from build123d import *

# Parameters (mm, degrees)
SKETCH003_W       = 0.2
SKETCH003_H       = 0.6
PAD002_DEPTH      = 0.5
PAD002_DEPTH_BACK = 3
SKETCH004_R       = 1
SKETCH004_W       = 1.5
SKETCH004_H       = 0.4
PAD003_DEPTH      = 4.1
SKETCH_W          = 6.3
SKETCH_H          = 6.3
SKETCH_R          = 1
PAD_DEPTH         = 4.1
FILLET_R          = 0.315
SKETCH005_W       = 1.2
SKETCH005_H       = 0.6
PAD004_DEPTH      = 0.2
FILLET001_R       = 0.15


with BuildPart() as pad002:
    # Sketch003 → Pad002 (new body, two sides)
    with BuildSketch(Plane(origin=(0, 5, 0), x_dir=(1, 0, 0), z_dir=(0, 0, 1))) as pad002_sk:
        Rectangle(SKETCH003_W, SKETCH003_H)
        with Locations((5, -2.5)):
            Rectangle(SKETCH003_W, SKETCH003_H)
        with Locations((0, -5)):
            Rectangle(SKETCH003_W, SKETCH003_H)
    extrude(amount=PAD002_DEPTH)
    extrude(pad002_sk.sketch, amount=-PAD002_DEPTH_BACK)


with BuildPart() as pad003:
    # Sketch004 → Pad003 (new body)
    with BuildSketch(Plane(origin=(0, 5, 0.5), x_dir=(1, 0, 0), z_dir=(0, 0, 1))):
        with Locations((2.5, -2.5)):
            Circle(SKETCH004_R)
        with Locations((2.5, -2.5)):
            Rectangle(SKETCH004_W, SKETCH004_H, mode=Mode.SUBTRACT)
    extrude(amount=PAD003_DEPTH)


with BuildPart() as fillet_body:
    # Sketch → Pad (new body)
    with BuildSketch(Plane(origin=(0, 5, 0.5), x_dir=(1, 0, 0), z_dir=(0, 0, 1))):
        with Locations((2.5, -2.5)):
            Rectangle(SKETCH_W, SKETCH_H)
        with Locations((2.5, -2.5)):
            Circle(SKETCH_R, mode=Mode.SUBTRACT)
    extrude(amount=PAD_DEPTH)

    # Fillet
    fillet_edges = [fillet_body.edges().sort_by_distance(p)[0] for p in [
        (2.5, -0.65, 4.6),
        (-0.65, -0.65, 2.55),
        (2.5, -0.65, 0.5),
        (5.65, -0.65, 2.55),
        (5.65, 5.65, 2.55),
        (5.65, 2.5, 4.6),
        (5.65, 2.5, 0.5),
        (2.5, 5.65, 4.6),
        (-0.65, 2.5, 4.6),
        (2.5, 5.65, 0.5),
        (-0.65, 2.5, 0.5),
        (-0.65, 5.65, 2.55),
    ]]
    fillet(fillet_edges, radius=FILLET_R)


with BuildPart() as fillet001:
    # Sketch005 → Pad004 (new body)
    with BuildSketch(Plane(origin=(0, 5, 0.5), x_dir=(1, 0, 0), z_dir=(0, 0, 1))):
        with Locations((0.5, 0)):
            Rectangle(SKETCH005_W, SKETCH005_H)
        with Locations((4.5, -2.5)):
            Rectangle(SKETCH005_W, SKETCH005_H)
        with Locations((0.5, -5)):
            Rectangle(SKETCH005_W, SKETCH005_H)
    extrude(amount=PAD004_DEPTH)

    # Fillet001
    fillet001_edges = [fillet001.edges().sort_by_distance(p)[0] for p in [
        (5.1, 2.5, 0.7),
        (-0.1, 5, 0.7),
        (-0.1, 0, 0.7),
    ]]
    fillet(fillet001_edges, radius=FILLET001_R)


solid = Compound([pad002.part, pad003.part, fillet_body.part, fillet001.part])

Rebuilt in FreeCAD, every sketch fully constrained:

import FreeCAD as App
import Part
import Sketcher
Q = App.Units.Quantity


def edges_at(feature, points):
    """Names of the edges that pass closest to the given points."""
    edges = feature.Shape.Edges
    near = lambda p: min(range(len(edges)), key=lambda i: edges[i].distToShape(Part.Vertex(*p))[0])
    return sorted({f"Edge{near(p) + 1}" for p in points})

doc = App.newDocument("Part")
params = doc.addObject("Spreadsheet::Sheet", "Params")
for row, (alias, value) in enumerate([
    ("sketch1_width", "0.2 mm"),
    ("sketch1_height", "0.6 mm"),
    ("pad1_length", "0.5 mm"),
    ("pad1_length2", "3 mm"),
    ("sketch2_diameter", "2 mm"),
    ("sketch2_width", "1.5 mm"),
    ("sketch2_height", "0.4 mm"),
    ("pad2_length", "4.1 mm"),
    ("sketch3_diameter", "2 mm"),
    ("sketch3_width", "6.3 mm"),
    ("pad3_length", "4.1 mm"),
    ("fillet_radius", "0.315 mm"),
    ("sketch4_width", "1.2 mm"),
    ("sketch4_height", "0.6 mm"),
    ("pad4_length", "0.2 mm"),
    ("fillet2_radius", "0.15 mm"),
], start=1):
    params.set(f"A{row}", alias)
    params.set(f"B{row}", "=" + value)
    params.setAlias(f"B{row}", alias)

body = doc.addObject("PartDesign::Body", "Body")
body.AllowCompound = True

# Sketch on XY plane
sketch1 = body.newObject("Sketcher::SketchObject", "Sketch")
sketch1.AttachmentSupport = (doc.getObject("XY_Plane"), [""])
sketch1.MapMode = "FlatFace"
sketch1.addGeometry([
    Part.LineSegment(App.Vector(-0.1, 5.3, 0), App.Vector(-0.1, 4.7, 0)),  # 0
    Part.LineSegment(App.Vector(-0.1, 4.7, 0), App.Vector(0.1, 4.7, 0)),  # 1
    Part.LineSegment(App.Vector(0.1, 4.7, 0), App.Vector(0.1, 5.3, 0)),  # 2
    Part.LineSegment(App.Vector(0.1, 5.3, 0), App.Vector(-0.1, 5.3, 0)),  # 3
    Part.LineSegment(App.Vector(4.9, 2.8, 0), App.Vector(4.9, 2.2, 0)),  # 4
    Part.LineSegment(App.Vector(4.9, 2.2, 0), App.Vector(5.1, 2.2, 0)),  # 5
    Part.LineSegment(App.Vector(5.1, 2.2, 0), App.Vector(5.1, 2.8, 0)),  # 6
    Part.LineSegment(App.Vector(5.1, 2.8, 0), App.Vector(4.9, 2.8, 0)),  # 7
    Part.LineSegment(App.Vector(-0.1, 0.3, 0), App.Vector(-0.1, -0.3, 0)),  # 8
    Part.LineSegment(App.Vector(-0.1, -0.3, 0), App.Vector(0.1, -0.3, 0)),  # 9
    Part.LineSegment(App.Vector(0.1, -0.3, 0), App.Vector(0.1, 0.3, 0)),  # 10
    Part.LineSegment(App.Vector(0.1, 0.3, 0), App.Vector(-0.1, 0.3, 0)),  # 11
], False)
sketch1.addConstraint([
    Sketcher.Constraint("Coincident", 0, 2, 1, 1),
    Sketcher.Constraint("Coincident", 1, 2, 2, 1),
    Sketcher.Constraint("Coincident", 2, 2, 3, 1),
    Sketcher.Constraint("Coincident", 3, 2, 0, 1),
    Sketcher.Constraint("Coincident", 4, 2, 5, 1),
    Sketcher.Constraint("Coincident", 5, 2, 6, 1),
    Sketcher.Constraint("Coincident", 6, 2, 7, 1),
    Sketcher.Constraint("Coincident", 7, 2, 4, 1),
    Sketcher.Constraint("Coincident", 8, 2, 9, 1),
    Sketcher.Constraint("Coincident", 9, 2, 10, 1),
    Sketcher.Constraint("Coincident", 10, 2, 11, 1),
    Sketcher.Constraint("Coincident", 11, 2, 8, 1),
    Sketcher.Constraint("Vertical", 0),
    Sketcher.Constraint("Horizontal", 1),
    Sketcher.Constraint("Vertical", 2),
    Sketcher.Constraint("Horizontal", 3),
    Sketcher.Constraint("Vertical", 4),
    Sketcher.Constraint("Horizontal", 5),
    Sketcher.Constraint("Vertical", 6),
    Sketcher.Constraint("Horizontal", 7),
    Sketcher.Constraint("Vertical", 8),
    Sketcher.Constraint("Horizontal", 9),
    Sketcher.Constraint("Vertical", 10),
    Sketcher.Constraint("Horizontal", 11),
    Sketcher.Constraint("Symmetric", 8, 2, 10, 2, -1, 1),
    Sketcher.Constraint("Vertical", 3, 2, 8, 2),
    Sketcher.Constraint("Vertical", 2, 2, 9, 2),
    Sketcher.Constraint("Equal", 3, 5),
    Sketcher.Constraint("Equal", 2, 4),
    Sketcher.Constraint("Equal", 6, 8),
    Sketcher.Constraint("DistanceX", 1, 1, 1, 2, Q("0.2 mm")),
    Sketcher.Constraint("DistanceY", 0, 2, 0, 1, Q("0.6 mm")),
    Sketcher.Constraint("DistanceX", 0, 2, 4, 2, Q("5 mm")),
    Sketcher.Constraint("DistanceY", 8, 2, 0, 2, Q("5 mm")),
    Sketcher.Constraint("DistanceY", -1, 1, 4, 2, Q("2.2 mm")),
])
sketch1.setExpression("Constraints[30]", "Params.sketch1_width")
sketch1.setExpression("Constraints[31]", "Params.sketch1_height")
pad1 = body.newObject("PartDesign::Pad", "Pad")
pad1.Profile = sketch1
pad1.Type = "TwoLengths"
pad1.setExpression("Length", "Params.pad1_length")
pad1.setExpression("Length2", "Params.pad1_length2")
body2 = doc.addObject("PartDesign::Body", "Body001")

# Sketch on XY plane
sketch2 = body2.newObject("Sketcher::SketchObject", "Sketch001")
sketch2.AttachmentSupport = (doc.getObject("XY_Plane001"), [""])
sketch2.MapMode = "FlatFace"
sketch2.AttachmentOffset = App.Placement(App.Vector(0, 0, 0.5), App.Rotation())
sketch2.addGeometry([
    Part.Circle(App.Vector(2.5, 2.5, 0), App.Vector(0, 0, 1), 1),  # 0
    Part.LineSegment(App.Vector(3.25, 2.3, 0), App.Vector(1.75, 2.3, 0)),  # 1
    Part.LineSegment(App.Vector(1.75, 2.3, 0), App.Vector(1.75, 2.7, 0)),  # 2
    Part.LineSegment(App.Vector(1.75, 2.7, 0), App.Vector(3.25, 2.7, 0)),  # 3
    Part.LineSegment(App.Vector(3.25, 2.7, 0), App.Vector(3.25, 2.3, 0)),  # 4
], False)
sketch2.addConstraint([
    Sketcher.Constraint("Coincident", 1, 2, 2, 1),
    Sketcher.Constraint("Coincident", 2, 2, 3, 1),
    Sketcher.Constraint("Coincident", 3, 2, 4, 1),
    Sketcher.Constraint("Coincident", 4, 2, 1, 1),
    Sketcher.Constraint("Horizontal", 1),
    Sketcher.Constraint("Vertical", 2),
    Sketcher.Constraint("Horizontal", 3),
    Sketcher.Constraint("Vertical", 4),
    Sketcher.Constraint("Diameter", 0, Q("2 mm")),
    Sketcher.Constraint("DistanceX", 1, 2, 1, 1, Q("1.5 mm")),
    Sketcher.Constraint("DistanceY", 2, 1, 2, 2, Q("0.4 mm")),
    Sketcher.Constraint("DistanceX", -1, 1, 0, 3, Q("2.5 mm")),
    Sketcher.Constraint("DistanceY", -1, 1, 0, 3, Q("2.5 mm")),
    Sketcher.Constraint("DistanceY", -1, 1, 1, 2, Q("2.3 mm")),
    Sketcher.Constraint("DistanceX", -1, 1, 1, 2, Q("1.75 mm")),
])
sketch2.setExpression("Constraints[8]", "Params.sketch2_diameter")
sketch2.setExpression("Constraints[9]", "Params.sketch2_width")
sketch2.setExpression("Constraints[10]", "Params.sketch2_height")
pad2 = body2.newObject("PartDesign::Pad", "Pad001")
pad2.Profile = sketch2
pad2.setExpression("Length", "Params.pad2_length")
body3 = doc.addObject("PartDesign::Body", "Body002")

# Sketch on XY plane
sketch3 = body3.newObject("Sketcher::SketchObject", "Sketch002")
sketch3.AttachmentSupport = (doc.getObject("XY_Plane002"), [""])
sketch3.MapMode = "FlatFace"
sketch3.AttachmentOffset = App.Placement(App.Vector(0, 0, 0.5), App.Rotation())
sketch3.addGeometry([
    Part.LineSegment(App.Vector(-0.7, 5.7, 0), App.Vector(-0.7, -0.7, 0)),  # 0
    Part.LineSegment(App.Vector(-0.7, -0.7, 0), App.Vector(5.7, -0.7, 0)),  # 1
    Part.LineSegment(App.Vector(5.7, -0.7, 0), App.Vector(5.7, 5.7, 0)),  # 2
    Part.LineSegment(App.Vector(5.7, 5.7, 0), App.Vector(-0.7, 5.7, 0)),  # 3
    Part.Circle(App.Vector(2.5, 2.5, 0), App.Vector(0, 0, 1), 1),  # 4
], False)
sketch3.addConstraint([
    Sketcher.Constraint("Coincident", 0, 2, 1, 1),
    Sketcher.Constraint("Coincident", 1, 2, 2, 1),
    Sketcher.Constraint("Coincident", 2, 2, 3, 1),
    Sketcher.Constraint("Coincident", 3, 2, 0, 1),
    Sketcher.Constraint("Vertical", 0),
    Sketcher.Constraint("Horizontal", 1),
    Sketcher.Constraint("Vertical", 2),
    Sketcher.Constraint("Horizontal", 3),
    Sketcher.Constraint("Equal", 3, 0),
    Sketcher.Constraint("Diameter", 4, Q("2 mm")),
    Sketcher.Constraint("DistanceX", 1, 1, 1, 2, Q("6.3 mm")),
    Sketcher.Constraint("DistanceX", -1, 1, 4, 3, Q("2.5 mm")),
    Sketcher.Constraint("DistanceY", -1, 1, 4, 3, Q("2.5 mm")),
    Sketcher.Constraint("DistanceX", 0, 2, -1, 1, Q("0.65 mm")),
    Sketcher.Constraint("DistanceY", 0, 2, -1, 1, Q("0.65 mm")),
])
sketch3.setExpression("Constraints[9]", "Params.sketch3_diameter")
sketch3.setExpression("Constraints[10]", "Params.sketch3_width")
pad3 = body3.newObject("PartDesign::Pad", "Pad002")
pad3.Profile = sketch3
pad3.setExpression("Length", "Params.pad3_length")
doc.recompute()

fillet = body3.newObject("PartDesign::Fillet", "Fillet")
fillet.Base = (pad3, edges_at(pad3, [
    (2.5, -0.65, 4.6),
    (-0.65, -0.65, 2.55),
    (2.5, -0.65, 0.5),
    (5.65, -0.65, 2.55),
    (5.65, 5.65, 2.55),
    (5.65, 2.5, 4.6),
    (5.65, 2.5, 0.5),
    (2.5, 5.65, 4.6),
    (-0.65, 2.5, 4.6),
    (2.5, 5.65, 0.5),
    (-0.65, 2.5, 0.5),
    (-0.65, 5.65, 2.55),
]))
fillet.setExpression("Radius", "Params.fillet_radius")
body4 = doc.addObject("PartDesign::Body", "Body003")
body4.AllowCompound = True

# Sketch on XY plane
sketch4 = body4.newObject("Sketcher::SketchObject", "Sketch003")
sketch4.AttachmentSupport = (doc.getObject("XY_Plane003"), [""])
sketch4.MapMode = "FlatFace"
sketch4.AttachmentOffset = App.Placement(App.Vector(0, 0, 0.5), App.Rotation())
sketch4.addGeometry([
    Part.LineSegment(App.Vector(-0.1, 5.3, 0), App.Vector(-0.1, 4.7, 0)),  # 0
    Part.LineSegment(App.Vector(-0.1, 4.7, 0), App.Vector(1.1, 4.7, 0)),  # 1
    Part.LineSegment(App.Vector(1.1, 4.7, 0), App.Vector(1.1, 5.3, 0)),  # 2
    Part.LineSegment(App.Vector(1.1, 5.3, 0), App.Vector(-0.1, 5.3, 0)),  # 3
    Part.LineSegment(App.Vector(3.9, 2.8, 0), App.Vector(3.9, 2.2, 0)),  # 4
    Part.LineSegment(App.Vector(3.9, 2.2, 0), App.Vector(5.1, 2.2, 0)),  # 5
    Part.LineSegment(App.Vector(5.1, 2.2, 0), App.Vector(5.1, 2.8, 0)),  # 6
    Part.LineSegment(App.Vector(5.1, 2.8, 0), App.Vector(3.9, 2.8, 0)),  # 7
    Part.LineSegment(App.Vector(-0.1, 0.3, 0), App.Vector(-0.1, -0.3, 0)),  # 8
    Part.LineSegment(App.Vector(-0.1, -0.3, 0), App.Vector(1.1, -0.3, 0)),  # 9
    Part.LineSegment(App.Vector(1.1, -0.3, 0), App.Vector(1.1, 0.3, 0)),  # 10
    Part.LineSegment(App.Vector(1.1, 0.3, 0), App.Vector(-0.1, 0.3, 0)),  # 11
], False)
sketch4.addConstraint([
    Sketcher.Constraint("Coincident", 0, 2, 1, 1),
    Sketcher.Constraint("Coincident", 1, 2, 2, 1),
    Sketcher.Constraint("Coincident", 2, 2, 3, 1),
    Sketcher.Constraint("Coincident", 3, 2, 0, 1),
    Sketcher.Constraint("Coincident", 4, 2, 5, 1),
    Sketcher.Constraint("Coincident", 5, 2, 6, 1),
    Sketcher.Constraint("Coincident", 6, 2, 7, 1),
    Sketcher.Constraint("Coincident", 7, 2, 4, 1),
    Sketcher.Constraint("Coincident", 8, 2, 9, 1),
    Sketcher.Constraint("Coincident", 9, 2, 10, 1),
    Sketcher.Constraint("Coincident", 10, 2, 11, 1),
    Sketcher.Constraint("Coincident", 11, 2, 8, 1),
    Sketcher.Constraint("Vertical", 0),
    Sketcher.Constraint("Horizontal", 1),
    Sketcher.Constraint("Vertical", 2),
    Sketcher.Constraint("Horizontal", 3),
    Sketcher.Constraint("Vertical", 4),
    Sketcher.Constraint("Horizontal", 5),
    Sketcher.Constraint("Vertical", 6),
    Sketcher.Constraint("Horizontal", 7),
    Sketcher.Constraint("Vertical", 8),
    Sketcher.Constraint("Horizontal", 9),
    Sketcher.Constraint("Vertical", 10),
    Sketcher.Constraint("Horizontal", 11),
    Sketcher.Constraint("Vertical", 3, 2, 8, 2),
    Sketcher.Constraint("Vertical", 2, 2, 9, 2),
    Sketcher.Constraint("Equal", 3, 5),
    Sketcher.Constraint("Equal", 2, 4),
    Sketcher.Constraint("Equal", 6, 8),
    Sketcher.Constraint("DistanceX", 1, 1, 1, 2, Q("1.2 mm")),
    Sketcher.Constraint("DistanceY", 0, 2, 0, 1, Q("0.6 mm")),
    Sketcher.Constraint("DistanceX", 0, 2, 4, 2, Q("4 mm")),
    Sketcher.Constraint("DistanceY", 8, 2, 0, 2, Q("5 mm")),
    Sketcher.Constraint("DistanceX", 0, 2, -1, 1, Q("0.1 mm")),
    Sketcher.Constraint("DistanceY", -1, 1, 0, 2, Q("4.7 mm")),
    Sketcher.Constraint("DistanceY", -1, 1, 4, 2, Q("2.2 mm")),
])
sketch4.setExpression("Constraints[29]", "Params.sketch4_width")
sketch4.setExpression("Constraints[30]", "Params.sketch4_height")
pad4 = body4.newObject("PartDesign::Pad", "Pad003")
pad4.Profile = sketch4
pad4.setExpression("Length", "Params.pad4_length")
doc.recompute()

fillet2 = body4.newObject("PartDesign::Fillet", "Fillet001")
fillet2.Base = (pad4, edges_at(pad4, [(5.1, 2.5, 0.7), (-0.1, 5, 0.7), (-0.1, 0, 0.7)]))
fillet2.setExpression("Radius", "Params.fillet2_radius")

doc.recompute()
